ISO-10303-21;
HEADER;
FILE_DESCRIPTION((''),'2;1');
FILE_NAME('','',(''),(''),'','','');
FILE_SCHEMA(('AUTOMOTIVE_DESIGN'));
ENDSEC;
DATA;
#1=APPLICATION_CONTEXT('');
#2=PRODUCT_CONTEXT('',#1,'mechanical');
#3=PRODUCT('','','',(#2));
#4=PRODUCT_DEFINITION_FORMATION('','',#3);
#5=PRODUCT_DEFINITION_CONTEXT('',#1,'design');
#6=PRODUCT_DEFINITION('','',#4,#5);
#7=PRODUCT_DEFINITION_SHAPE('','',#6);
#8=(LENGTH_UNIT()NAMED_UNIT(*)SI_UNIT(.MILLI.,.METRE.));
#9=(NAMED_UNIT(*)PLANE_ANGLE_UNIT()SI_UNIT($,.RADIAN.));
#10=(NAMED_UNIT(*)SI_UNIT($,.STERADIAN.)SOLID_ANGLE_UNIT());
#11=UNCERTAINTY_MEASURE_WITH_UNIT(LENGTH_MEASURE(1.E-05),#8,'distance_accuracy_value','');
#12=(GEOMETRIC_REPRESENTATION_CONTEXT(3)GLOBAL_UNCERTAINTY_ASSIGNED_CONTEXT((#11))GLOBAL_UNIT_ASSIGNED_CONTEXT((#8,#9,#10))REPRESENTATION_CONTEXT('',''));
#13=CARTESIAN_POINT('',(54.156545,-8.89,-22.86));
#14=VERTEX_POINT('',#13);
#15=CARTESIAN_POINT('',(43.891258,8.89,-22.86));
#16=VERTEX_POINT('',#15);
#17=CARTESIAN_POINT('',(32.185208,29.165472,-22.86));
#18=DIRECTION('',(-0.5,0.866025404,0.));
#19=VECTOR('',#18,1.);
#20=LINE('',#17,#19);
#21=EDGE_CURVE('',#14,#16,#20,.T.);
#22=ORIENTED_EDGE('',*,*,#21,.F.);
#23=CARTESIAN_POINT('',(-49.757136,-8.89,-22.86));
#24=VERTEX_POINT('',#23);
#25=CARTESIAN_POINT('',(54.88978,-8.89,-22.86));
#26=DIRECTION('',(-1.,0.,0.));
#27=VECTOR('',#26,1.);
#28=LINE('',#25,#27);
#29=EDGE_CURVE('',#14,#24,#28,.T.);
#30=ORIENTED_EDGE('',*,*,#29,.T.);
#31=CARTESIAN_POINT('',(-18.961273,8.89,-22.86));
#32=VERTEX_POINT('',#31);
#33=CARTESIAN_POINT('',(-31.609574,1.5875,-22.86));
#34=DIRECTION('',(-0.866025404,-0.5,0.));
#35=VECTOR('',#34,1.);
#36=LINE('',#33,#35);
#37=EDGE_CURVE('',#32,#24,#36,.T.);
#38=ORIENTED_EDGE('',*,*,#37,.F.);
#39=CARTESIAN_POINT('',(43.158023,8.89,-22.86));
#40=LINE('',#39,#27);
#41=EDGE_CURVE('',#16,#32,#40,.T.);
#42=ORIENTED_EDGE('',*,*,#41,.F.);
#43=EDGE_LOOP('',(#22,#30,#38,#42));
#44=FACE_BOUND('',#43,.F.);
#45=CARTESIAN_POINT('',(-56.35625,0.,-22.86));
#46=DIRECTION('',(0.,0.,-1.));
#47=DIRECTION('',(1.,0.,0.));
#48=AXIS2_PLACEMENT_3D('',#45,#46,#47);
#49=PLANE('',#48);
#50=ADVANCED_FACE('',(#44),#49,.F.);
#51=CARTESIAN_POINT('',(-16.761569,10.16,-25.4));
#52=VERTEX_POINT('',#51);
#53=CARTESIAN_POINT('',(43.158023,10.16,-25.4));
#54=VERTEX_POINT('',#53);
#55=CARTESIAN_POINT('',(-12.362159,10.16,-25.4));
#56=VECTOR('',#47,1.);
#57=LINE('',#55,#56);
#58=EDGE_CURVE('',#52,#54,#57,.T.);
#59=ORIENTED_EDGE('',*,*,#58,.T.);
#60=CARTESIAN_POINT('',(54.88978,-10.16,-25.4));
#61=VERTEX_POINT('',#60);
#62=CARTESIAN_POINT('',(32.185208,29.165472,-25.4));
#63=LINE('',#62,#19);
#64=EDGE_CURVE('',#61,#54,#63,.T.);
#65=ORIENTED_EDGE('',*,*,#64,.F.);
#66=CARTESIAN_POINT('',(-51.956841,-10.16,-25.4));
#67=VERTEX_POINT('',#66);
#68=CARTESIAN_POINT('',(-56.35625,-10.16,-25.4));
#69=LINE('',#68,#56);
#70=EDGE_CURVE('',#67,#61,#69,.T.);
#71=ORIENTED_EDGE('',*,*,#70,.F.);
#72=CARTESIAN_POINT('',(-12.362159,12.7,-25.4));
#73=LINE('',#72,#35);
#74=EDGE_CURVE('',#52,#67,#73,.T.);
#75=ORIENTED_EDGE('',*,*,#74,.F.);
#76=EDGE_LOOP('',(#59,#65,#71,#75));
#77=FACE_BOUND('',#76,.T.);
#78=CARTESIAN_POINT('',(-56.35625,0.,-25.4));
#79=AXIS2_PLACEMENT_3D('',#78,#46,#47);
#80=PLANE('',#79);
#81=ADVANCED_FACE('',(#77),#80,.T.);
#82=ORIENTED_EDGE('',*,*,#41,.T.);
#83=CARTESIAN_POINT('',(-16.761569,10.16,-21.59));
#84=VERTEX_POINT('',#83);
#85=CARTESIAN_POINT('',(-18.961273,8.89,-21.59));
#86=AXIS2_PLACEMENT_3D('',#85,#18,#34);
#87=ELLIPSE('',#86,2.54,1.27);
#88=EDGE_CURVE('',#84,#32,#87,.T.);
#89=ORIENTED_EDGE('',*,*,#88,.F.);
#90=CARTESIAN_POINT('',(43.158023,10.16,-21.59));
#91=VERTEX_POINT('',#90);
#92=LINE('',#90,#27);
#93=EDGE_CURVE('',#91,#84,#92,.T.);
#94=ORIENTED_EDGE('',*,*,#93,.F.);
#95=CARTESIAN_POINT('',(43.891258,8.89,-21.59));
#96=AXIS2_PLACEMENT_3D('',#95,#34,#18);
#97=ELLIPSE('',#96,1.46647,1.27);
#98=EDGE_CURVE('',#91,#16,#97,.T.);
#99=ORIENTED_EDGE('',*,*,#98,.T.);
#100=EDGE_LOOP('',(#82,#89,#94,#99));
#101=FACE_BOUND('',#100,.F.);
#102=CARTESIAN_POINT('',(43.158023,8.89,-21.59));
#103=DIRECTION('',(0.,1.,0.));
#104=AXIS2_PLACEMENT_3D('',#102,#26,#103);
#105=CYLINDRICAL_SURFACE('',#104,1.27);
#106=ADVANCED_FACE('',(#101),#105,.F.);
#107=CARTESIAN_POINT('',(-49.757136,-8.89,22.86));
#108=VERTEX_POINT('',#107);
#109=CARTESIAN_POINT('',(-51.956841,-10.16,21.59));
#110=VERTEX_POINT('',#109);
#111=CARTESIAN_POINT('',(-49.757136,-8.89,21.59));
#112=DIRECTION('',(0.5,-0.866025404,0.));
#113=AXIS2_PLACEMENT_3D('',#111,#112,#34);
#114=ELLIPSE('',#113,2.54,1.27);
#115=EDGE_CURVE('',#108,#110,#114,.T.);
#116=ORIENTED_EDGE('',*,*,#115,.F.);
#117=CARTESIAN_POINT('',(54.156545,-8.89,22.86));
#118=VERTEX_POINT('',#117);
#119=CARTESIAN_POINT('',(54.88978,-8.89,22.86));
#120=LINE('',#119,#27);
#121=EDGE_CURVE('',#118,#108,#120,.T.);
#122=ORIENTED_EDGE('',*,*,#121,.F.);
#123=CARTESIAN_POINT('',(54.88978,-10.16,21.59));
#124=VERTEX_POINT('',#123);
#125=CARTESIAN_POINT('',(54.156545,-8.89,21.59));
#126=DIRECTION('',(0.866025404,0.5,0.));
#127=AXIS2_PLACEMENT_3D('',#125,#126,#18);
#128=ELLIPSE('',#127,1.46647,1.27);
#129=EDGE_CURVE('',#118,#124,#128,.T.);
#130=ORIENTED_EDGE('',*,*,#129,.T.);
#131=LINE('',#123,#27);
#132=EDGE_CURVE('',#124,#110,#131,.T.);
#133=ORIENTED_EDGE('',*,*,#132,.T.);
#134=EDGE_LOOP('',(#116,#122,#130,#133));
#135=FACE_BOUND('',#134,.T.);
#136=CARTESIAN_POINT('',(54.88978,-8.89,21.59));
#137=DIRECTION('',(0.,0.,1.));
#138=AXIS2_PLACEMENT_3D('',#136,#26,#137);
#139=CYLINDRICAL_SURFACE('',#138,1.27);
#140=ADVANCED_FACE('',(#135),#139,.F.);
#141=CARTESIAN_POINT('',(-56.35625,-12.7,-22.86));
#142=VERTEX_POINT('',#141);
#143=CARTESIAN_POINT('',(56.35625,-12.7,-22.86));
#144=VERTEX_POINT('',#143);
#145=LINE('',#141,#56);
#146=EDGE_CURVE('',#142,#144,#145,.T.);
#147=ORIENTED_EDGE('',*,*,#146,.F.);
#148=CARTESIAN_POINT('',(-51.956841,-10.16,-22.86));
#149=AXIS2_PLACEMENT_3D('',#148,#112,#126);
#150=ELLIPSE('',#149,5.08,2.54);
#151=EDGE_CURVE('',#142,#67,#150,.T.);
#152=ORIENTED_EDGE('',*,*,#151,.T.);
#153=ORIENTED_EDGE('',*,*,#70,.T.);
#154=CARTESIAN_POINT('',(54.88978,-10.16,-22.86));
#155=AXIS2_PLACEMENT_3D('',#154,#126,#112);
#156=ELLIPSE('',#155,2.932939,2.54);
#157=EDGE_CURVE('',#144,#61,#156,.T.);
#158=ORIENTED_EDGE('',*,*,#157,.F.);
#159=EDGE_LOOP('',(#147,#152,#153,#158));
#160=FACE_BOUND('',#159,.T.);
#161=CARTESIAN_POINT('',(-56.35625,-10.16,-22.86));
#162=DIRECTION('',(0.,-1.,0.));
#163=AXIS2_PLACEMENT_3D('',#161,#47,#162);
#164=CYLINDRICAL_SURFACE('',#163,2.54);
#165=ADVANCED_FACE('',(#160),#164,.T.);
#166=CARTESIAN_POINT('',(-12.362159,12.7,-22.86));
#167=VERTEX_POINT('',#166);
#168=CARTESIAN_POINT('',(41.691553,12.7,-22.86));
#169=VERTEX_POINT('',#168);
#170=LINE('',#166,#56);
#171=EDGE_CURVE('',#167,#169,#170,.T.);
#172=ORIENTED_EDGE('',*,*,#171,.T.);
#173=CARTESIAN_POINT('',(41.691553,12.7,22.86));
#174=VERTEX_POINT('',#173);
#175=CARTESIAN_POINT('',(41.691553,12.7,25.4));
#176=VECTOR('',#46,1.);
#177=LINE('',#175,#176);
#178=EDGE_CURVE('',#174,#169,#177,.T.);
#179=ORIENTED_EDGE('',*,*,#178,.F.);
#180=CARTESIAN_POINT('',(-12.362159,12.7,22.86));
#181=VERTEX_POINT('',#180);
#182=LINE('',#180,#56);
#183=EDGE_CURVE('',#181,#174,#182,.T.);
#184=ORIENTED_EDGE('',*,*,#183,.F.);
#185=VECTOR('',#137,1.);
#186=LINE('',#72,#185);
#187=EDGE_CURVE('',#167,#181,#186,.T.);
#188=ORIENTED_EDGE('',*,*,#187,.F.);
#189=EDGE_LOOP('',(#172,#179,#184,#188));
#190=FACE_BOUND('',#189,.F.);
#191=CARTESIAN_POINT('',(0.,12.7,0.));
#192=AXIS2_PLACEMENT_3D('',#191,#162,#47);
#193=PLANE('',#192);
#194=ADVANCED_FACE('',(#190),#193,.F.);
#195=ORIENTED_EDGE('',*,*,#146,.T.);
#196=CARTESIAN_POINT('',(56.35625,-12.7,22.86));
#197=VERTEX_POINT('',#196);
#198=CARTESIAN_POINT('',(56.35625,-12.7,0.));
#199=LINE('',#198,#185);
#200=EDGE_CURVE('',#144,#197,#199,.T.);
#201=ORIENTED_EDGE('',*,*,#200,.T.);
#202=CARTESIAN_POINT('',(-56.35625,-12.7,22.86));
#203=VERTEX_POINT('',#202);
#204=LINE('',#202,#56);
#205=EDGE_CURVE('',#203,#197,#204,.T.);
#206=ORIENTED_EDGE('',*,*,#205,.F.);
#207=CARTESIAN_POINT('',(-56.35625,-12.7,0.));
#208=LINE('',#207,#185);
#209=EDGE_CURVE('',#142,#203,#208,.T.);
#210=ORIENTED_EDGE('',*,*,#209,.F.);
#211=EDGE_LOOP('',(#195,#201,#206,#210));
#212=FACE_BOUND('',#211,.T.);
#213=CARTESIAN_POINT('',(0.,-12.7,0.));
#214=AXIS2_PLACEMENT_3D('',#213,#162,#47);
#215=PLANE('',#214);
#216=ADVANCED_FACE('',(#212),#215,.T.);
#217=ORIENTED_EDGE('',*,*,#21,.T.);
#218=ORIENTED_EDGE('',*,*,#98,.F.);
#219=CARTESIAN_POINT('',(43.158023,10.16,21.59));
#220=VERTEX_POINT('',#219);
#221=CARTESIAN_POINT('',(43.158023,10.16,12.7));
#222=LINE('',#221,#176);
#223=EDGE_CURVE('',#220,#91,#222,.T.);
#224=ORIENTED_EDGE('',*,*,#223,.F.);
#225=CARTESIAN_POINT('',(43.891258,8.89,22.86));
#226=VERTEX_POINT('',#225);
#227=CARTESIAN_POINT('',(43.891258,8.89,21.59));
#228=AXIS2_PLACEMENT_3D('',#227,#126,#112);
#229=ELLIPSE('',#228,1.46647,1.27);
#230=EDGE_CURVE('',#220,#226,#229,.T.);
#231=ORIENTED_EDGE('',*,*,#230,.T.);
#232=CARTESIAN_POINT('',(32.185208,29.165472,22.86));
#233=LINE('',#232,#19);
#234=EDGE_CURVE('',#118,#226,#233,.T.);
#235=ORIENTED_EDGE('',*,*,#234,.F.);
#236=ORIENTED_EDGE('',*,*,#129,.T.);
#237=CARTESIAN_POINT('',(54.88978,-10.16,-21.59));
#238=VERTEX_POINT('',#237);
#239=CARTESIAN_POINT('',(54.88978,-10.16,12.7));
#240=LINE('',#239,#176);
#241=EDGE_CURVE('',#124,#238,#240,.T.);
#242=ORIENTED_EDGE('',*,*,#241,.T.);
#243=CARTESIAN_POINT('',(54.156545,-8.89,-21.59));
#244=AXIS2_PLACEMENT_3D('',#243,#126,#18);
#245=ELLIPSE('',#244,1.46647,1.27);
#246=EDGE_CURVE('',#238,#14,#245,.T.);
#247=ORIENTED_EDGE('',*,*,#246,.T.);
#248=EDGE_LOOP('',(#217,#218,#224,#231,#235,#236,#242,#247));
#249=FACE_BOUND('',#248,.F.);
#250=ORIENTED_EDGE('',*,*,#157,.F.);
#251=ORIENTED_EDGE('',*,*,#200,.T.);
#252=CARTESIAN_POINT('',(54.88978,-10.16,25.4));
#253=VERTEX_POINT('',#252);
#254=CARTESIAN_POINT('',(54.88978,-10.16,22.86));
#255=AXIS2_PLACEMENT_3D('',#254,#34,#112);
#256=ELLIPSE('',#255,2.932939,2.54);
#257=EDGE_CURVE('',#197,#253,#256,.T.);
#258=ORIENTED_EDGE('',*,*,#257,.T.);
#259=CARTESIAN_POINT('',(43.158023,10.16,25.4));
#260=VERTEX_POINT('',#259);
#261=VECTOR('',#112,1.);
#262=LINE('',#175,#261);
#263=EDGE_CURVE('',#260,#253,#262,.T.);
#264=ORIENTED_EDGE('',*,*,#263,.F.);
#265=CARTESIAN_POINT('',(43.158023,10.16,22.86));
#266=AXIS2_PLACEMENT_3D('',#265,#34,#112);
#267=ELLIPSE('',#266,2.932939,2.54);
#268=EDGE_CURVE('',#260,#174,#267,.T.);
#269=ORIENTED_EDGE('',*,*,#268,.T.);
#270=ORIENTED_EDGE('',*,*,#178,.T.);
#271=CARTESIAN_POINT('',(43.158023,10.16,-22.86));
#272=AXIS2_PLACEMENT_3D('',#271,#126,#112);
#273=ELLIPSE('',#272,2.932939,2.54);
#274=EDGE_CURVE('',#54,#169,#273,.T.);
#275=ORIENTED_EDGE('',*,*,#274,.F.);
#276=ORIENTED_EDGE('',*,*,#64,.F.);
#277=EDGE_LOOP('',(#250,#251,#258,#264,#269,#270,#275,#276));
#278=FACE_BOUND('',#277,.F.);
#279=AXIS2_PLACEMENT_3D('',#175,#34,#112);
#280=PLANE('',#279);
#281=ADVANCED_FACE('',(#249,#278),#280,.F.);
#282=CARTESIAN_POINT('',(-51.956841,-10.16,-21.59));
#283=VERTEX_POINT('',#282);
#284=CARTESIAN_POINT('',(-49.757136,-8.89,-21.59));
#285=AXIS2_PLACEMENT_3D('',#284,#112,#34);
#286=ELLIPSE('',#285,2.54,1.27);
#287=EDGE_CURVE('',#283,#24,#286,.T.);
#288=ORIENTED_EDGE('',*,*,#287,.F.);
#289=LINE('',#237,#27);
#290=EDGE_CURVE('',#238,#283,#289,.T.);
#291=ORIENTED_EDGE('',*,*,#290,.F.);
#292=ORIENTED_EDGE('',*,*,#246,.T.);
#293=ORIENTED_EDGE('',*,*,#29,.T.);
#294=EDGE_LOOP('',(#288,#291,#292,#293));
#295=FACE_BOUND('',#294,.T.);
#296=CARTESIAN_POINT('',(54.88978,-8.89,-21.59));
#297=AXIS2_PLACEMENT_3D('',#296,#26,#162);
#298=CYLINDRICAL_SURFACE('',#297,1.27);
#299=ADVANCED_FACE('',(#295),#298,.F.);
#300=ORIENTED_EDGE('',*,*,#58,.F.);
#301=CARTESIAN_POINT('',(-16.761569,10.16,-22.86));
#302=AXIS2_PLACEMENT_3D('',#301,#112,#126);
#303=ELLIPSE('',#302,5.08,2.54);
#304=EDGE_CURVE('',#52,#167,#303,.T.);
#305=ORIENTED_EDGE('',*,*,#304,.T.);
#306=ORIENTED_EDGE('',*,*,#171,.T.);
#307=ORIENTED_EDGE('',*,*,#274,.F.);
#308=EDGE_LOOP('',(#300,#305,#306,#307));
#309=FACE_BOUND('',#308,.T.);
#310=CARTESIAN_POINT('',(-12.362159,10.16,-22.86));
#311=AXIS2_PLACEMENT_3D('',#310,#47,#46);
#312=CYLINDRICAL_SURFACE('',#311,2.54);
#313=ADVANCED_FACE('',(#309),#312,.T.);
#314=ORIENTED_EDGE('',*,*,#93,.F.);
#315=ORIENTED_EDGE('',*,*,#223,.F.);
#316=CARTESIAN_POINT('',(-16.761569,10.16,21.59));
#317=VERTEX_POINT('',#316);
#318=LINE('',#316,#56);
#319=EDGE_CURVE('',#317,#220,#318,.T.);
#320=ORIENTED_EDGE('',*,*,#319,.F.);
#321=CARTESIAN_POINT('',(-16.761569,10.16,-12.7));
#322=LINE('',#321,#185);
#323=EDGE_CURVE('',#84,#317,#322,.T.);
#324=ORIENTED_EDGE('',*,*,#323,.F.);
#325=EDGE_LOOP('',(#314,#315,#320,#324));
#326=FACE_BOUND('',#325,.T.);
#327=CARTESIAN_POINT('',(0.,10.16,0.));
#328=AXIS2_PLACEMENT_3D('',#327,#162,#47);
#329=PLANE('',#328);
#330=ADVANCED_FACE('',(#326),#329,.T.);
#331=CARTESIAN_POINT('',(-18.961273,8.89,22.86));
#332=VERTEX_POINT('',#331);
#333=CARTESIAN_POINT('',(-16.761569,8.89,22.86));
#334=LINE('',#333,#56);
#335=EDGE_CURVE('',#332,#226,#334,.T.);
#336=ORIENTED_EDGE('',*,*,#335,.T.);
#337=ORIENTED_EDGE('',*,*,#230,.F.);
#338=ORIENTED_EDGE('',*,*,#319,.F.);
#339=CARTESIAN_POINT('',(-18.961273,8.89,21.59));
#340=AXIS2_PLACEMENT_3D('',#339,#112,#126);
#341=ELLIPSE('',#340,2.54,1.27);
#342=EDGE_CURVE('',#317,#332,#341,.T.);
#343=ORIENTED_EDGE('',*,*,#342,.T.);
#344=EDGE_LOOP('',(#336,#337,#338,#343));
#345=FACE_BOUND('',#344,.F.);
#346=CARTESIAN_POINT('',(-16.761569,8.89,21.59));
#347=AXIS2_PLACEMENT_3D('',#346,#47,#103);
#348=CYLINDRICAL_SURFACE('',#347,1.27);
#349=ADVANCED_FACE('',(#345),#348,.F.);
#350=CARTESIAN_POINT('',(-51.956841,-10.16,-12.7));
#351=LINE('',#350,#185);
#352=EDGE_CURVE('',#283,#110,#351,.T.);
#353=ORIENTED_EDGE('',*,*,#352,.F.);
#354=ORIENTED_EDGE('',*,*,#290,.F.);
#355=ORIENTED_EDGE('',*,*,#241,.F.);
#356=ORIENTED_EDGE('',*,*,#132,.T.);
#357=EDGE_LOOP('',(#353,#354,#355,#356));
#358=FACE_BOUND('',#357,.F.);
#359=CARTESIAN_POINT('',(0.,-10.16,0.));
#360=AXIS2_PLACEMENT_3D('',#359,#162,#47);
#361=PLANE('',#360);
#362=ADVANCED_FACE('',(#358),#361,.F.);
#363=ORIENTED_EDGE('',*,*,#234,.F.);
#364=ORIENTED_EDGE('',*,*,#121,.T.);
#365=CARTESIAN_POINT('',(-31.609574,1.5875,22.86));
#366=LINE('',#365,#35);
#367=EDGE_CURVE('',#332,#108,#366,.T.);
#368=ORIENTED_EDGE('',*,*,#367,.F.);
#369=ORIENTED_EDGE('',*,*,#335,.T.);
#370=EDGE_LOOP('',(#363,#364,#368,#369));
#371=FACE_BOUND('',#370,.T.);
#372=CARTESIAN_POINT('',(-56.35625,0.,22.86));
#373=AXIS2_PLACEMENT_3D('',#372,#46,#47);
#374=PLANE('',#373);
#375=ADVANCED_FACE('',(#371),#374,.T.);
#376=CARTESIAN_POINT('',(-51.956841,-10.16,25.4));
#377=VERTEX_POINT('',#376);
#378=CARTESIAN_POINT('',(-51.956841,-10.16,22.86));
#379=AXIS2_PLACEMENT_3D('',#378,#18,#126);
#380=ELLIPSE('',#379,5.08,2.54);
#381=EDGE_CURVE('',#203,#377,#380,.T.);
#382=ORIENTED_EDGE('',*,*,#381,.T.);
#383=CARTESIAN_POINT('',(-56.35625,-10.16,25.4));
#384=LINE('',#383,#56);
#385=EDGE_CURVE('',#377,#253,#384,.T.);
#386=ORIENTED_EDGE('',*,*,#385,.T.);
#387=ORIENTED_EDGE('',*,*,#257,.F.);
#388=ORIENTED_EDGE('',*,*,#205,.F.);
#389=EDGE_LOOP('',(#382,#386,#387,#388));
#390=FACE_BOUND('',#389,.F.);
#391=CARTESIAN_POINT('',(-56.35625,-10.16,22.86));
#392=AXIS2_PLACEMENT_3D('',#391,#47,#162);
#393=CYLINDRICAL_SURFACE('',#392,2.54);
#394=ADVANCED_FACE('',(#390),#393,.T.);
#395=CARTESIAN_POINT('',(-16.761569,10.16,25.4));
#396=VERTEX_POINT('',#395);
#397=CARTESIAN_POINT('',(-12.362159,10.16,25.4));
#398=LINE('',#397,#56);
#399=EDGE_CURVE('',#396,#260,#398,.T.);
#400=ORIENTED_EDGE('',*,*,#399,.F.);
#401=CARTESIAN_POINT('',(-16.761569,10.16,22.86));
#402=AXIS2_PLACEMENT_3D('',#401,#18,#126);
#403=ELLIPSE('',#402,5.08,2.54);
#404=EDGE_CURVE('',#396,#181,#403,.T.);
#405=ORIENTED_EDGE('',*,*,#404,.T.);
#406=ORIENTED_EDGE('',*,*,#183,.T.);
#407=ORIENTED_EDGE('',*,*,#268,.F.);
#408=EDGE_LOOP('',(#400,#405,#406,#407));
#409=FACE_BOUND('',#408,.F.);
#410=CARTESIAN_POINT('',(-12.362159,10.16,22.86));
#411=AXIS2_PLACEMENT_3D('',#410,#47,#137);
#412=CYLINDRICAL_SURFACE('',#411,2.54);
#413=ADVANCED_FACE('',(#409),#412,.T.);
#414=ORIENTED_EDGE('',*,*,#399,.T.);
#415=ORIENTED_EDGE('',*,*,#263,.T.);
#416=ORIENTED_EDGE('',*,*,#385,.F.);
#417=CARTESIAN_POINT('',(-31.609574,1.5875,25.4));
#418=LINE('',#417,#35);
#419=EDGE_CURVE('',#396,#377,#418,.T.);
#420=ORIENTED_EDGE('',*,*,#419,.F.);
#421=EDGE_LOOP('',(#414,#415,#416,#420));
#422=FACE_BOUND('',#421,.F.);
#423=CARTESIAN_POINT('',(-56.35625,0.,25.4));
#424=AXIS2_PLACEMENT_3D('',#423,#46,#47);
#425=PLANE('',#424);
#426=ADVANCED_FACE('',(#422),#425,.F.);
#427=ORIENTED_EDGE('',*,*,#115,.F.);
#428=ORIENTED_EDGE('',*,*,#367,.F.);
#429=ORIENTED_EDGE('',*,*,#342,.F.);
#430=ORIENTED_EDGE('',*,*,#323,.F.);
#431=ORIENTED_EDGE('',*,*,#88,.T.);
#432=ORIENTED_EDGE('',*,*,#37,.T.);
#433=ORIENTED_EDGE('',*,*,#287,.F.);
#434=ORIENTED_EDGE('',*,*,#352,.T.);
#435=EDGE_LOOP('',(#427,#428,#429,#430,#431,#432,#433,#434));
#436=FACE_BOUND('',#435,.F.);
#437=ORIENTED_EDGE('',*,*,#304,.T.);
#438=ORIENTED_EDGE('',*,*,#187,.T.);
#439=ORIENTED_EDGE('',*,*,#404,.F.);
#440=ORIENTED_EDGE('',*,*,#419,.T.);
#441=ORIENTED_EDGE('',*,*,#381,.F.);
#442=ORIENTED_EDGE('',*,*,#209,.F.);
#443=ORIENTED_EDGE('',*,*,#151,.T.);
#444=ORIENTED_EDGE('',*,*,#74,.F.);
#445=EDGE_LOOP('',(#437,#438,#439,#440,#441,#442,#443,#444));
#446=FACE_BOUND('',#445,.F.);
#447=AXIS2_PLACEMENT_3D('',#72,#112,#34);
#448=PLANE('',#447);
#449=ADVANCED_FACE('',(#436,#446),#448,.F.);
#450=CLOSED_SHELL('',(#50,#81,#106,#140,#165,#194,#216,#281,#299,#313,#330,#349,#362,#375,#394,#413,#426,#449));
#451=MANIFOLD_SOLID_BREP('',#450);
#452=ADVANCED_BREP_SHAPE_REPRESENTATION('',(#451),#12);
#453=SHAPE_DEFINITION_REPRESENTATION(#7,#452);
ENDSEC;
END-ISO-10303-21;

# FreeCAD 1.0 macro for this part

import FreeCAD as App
import Part
import Sketcher
Q = App.Units.Quantity


def edges_at(feature, points):
    """Names of the edges that pass closest to the given points."""
    edges = feature.Shape.Edges
    near = lambda p: min(range(len(edges)), key=lambda i: edges[i].distToShape(Part.Vertex(*p))[0])
    return sorted({f"Edge{near(p) + 1}" for p in points})


def faces_at(feature, points):
    """Names of the faces that lie closest to the given points."""
    faces = feature.Shape.Faces
    near = lambda p: min(range(len(faces)), key=lambda i: faces[i].distToShape(Part.Vertex(*p))[0])
    return sorted({f"Face{near(p) + 1}" for p in points})

doc = App.newDocument("Part")
body = doc.addObject("PartDesign::Body", "Body")

# Sketch on XZ plane
sketch1 = body.newObject("Sketcher::SketchObject", "Sketch")
sketch1.AttachmentSupport = (doc.getObject("XZ_Plane"), [""])
sketch1.MapMode = "FlatFace"
sketch1.addGeometry([
    Part.LineSegment(App.Vector(-56, 25, 0), App.Vector(-56, -25, 0)),
    Part.LineSegment(App.Vector(-56, -25, 0), App.Vector(56, -25, 0)),
    Part.LineSegment(App.Vector(56, -25, 0), App.Vector(56, 25, 0)),
    Part.LineSegment(App.Vector(56, 25, 0), App.Vector(-56, 25, 0)),
], False)
sketch1.addConstraint([
    Sketcher.Constraint("Coincident", 0, 2, 1, 1),
    Sketcher.Constraint("Coincident", 1, 2, 2, 1),
    Sketcher.Constraint("Coincident", 2, 2, 3, 1),
    Sketcher.Constraint("Coincident", 3, 2, 0, 1),
    Sketcher.Constraint("Vertical", 0),
    Sketcher.Constraint("Horizontal", 1),
    Sketcher.Constraint("Vertical", 2),
    Sketcher.Constraint("Horizontal", 3),
    Sketcher.Constraint("Symmetric", 0, 2, 2, 2, -1, 1),
    Sketcher.Constraint("DistanceY", 0, 2, 0, 1, Q("2 in")),
    Sketcher.Constraint("DistanceX", 1, 1, 1, 2, Q("4.4375 in")),
])
pad1 = body.newObject("PartDesign::Pad", "Pad")
pad1.Profile = sketch1
pad1.Length = Q("1 in")
pad1.Midplane = True
doc.recompute()

thickness = body.newObject("PartDesign::Thickness", "Thickness")
thickness.Base = (pad1, faces_at(pad1, [(-56.356, 0, 0), (56.356, 0, 0)]))
thickness.Value = Q("0.1 in")
thickness.Reversed = True
thickness.Join = "Arc"

# Sketch on XY plane
sketch2 = body.newObject("Sketcher::SketchObject", "Sketch001")
sketch2.AttachmentSupport = (doc.getObject("XY_Plane"), [""])
sketch2.MapMode = "FlatFace"
sketch2.AttachmentOffset = App.Placement(App.Vector(0, 0, -1 * 25.4), App.Rotation())
sketch2.addGeometry([
    Part.LineSegment(App.Vector(-12, 13, 0), App.Vector(-56, -13, 0)),
    Part.LineSegment(App.Vector(-56, -13, 0), App.Vector(-56, 13, 0)),
    Part.LineSegment(App.Vector(-56, 13, 0), App.Vector(-12, 13, 0)),
], False)
sketch2.addConstraint([
    Sketcher.Constraint("Coincident", 0, 2, 1, 1),
    Sketcher.Constraint("Coincident", 1, 2, 2, 1),
    Sketcher.Constraint("Coincident", 2, 2, 0, 1),
    Sketcher.Constraint("Vertical", 1),
    Sketcher.Constraint("Horizontal", 2),
    Sketcher.Constraint("DistanceY", 1, 1, 1, 2, Q("1 in")),
    Sketcher.Constraint("Distance", 0, Q("2 in")),
    Sketcher.Constraint("DistanceY", 0, 2, -1, 1, Q("0.5 in")),
    Sketcher.Constraint("DistanceX", 0, 2, -1, 1, Q("2.21875 in")),
])
pocket1 = body.newObject("PartDesign::Pocket", "Pocket")
pocket1.Profile = sketch2
pocket1.Type = "ThroughAll"
pocket1.Reversed = True

# Sketch on XY plane
sketch3 = body.newObject("Sketcher::SketchObject", "Sketch002")
sketch3.AttachmentSupport = (doc.getObject("XY_Plane"), [""])
sketch3.MapMode = "FlatFace"
sketch3.AttachmentOffset = App.Placement(App.Vector(0, 0, 1 * 25.4), App.Rotation())
sketch3.addGeometry([
    Part.LineSegment(App.Vector(42, 13, 0), App.Vector(56, -13, 0)),
    Part.LineSegment(App.Vector(56, -13, 0), App.Vector(56, 13, 0)),
    Part.LineSegment(App.Vector(56, 13, 0), App.Vector(42, 13, 0)),
], False)
sketch3.addConstraint([
    Sketcher.Constraint("Coincident", 0, 2, 1, 1),
    Sketcher.Constraint("Coincident", 1, 2, 2, 1),
    Sketcher.Constraint("Coincident", 2, 2, 0, 1),
    Sketcher.Constraint("Vertical", 1),
    Sketcher.Constraint("Horizontal", 2),
    Sketcher.Constraint("DistanceY", 1, 1, 1, 2, Q("1 in")),
    Sketcher.Constraint("Angle", 0, Q("-60 deg")),
    Sketcher.Constraint("DistanceY", 0, 2, -1, 1, Q("0.5 in")),
    Sketcher.Constraint("DistanceX", -1, 1, 0, 2, Q("2.21875 in")),
])
pocket2 = body.newObject("PartDesign::Pocket", "Pocket001")
pocket2.Profile = sketch3
pocket2.Type = "ThroughAll"
doc.recompute()

fillet = body.newObject("PartDesign::Fillet", "Fillet")
fillet.Base = (pocket2, edges_at(pocket2, [
    (0, -12.7, 25.4),
    (14.665, 12.7, 25.4),
    (14.665, 12.7, -25.4),
    (0, -12.7, -25.4),
]))
fillet.Radius = Q("0.1 in")
doc.recompute()

fillet2 = body.newObject("PartDesign::Fillet", "Fillet001")
fillet2.Base = (fillet, edges_at(fillet, [
    (13.198, 10.16, 22.86),
    (1.466, -10.16, 22.86),
    (1.466, -10.16, -22.86),
    (13.198, 10.16, -22.86),
]))
fillet2.Radius = Q("0.05 in")

doc.recompute()
